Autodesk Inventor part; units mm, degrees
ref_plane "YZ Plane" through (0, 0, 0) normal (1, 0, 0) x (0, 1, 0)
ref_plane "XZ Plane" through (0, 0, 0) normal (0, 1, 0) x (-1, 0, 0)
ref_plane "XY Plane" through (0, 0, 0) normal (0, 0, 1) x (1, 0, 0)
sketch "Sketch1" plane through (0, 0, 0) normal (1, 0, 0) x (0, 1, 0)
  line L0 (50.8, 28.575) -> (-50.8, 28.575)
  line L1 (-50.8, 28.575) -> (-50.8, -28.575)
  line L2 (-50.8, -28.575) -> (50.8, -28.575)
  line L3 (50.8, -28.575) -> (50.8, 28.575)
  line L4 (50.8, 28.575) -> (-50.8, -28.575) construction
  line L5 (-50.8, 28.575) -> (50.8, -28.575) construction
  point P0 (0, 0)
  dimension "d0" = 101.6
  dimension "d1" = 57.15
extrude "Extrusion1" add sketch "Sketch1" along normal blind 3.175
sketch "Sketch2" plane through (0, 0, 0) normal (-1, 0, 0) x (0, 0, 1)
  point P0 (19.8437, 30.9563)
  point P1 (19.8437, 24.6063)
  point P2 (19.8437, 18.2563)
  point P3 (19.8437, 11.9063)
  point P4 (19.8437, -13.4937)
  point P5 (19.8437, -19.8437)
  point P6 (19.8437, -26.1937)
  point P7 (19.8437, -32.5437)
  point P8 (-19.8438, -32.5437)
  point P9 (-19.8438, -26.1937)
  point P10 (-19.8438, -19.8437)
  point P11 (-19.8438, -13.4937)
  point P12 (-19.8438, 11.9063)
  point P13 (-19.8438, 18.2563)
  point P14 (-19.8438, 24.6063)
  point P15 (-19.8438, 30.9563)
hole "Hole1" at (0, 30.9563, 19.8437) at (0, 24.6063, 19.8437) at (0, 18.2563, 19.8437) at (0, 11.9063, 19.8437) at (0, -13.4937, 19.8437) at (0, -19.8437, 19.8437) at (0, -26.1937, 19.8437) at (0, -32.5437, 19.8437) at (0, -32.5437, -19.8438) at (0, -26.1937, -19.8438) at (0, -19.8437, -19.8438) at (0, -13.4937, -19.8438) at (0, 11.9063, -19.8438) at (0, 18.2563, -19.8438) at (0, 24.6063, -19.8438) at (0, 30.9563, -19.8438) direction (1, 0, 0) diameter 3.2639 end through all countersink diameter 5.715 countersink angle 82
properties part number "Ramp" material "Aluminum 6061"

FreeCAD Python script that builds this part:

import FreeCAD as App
import Part
import Sketcher
Q = App.Units.Quantity


def add_polygon(sketch, points):
    """Adds a closed chain of lines whose ends are joined by coincident constraints."""
    first, n = sketch.GeometryCount, len(points)
    for a, b in zip(points, points[1:] + points[:1]):
        sketch.addGeometry(Part.LineSegment(App.Vector(*a, 0), App.Vector(*b, 0)), False)
    for i in range(n):
        sketch.addConstraint(Sketcher.Constraint("Coincident", first + i, 2, first + (i + 1) % n, 1))

doc = App.newDocument("Part")
body = doc.addObject("PartDesign::Body", "Body")

# Sketch on YZ plane
sketch1 = body.newObject("Sketcher::SketchObject", "Sketch")
sketch1.AttachmentSupport = (doc.getObject("YZ_Plane"), [""])
sketch1.MapMode = "FlatFace"
add_polygon(sketch1, [(51, -29), (51, 29), (-51, 29), (-51, -29)])  # lines 0-3
sketch1.addConstraint([
    Sketcher.Constraint("Vertical", 0),
    Sketcher.Constraint("Horizontal", 1),
    Sketcher.Constraint("Vertical", 2),
    Sketcher.Constraint("Horizontal", 3),
    Sketcher.Constraint("Symmetric", 0, 2, 2, 2, -1, 1),
    Sketcher.Constraint("DistanceX", 1, 2, 1, 1, Q("4 in")),
    Sketcher.Constraint("DistanceY", 0, 1, 0, 2, Q("2.25 in")),
])
pad1 = body.newObject("PartDesign::Pad", "Pad")
pad1.Profile = sketch1
pad1.Length = Q("0.125 in")

# Sketch on YZ plane
sketch2 = body.newObject("Sketcher::SketchObject", "Sketch001")
sketch2.AttachmentSupport = (doc.getObject("YZ_Plane"), [""])
sketch2.MapMode = "FlatFace"
sketch2.addGeometry([
    Part.Circle(App.Vector(31, 19.8, 0), App.Vector(0, 0, 1), 1.6),  # 0
    Part.Circle(App.Vector(24.6, 19.8, 0), App.Vector(0, 0, 1), 1.6),  # 1
    Part.Circle(App.Vector(18.3, 19.8, 0), App.Vector(0, 0, 1), 1.6),  # 2
    Part.Circle(App.Vector(11.9, 19.8, 0), App.Vector(0, 0, 1), 1.6),  # 3
    Part.Circle(App.Vector(-13.5, 19.8, 0), App.Vector(0, 0, 1), 1.6),  # 4
    Part.Circle(App.Vector(-19.8, 19.8, 0), App.Vector(0, 0, 1), 1.6),  # 5
    Part.Circle(App.Vector(-26.2, 19.8, 0), App.Vector(0, 0, 1), 1.6),  # 6
    Part.Circle(App.Vector(-32.5, 19.8, 0), App.Vector(0, 0, 1), 1.6),  # 7
    Part.Circle(App.Vector(-32.5, -19.8, 0), App.Vector(0, 0, 1), 1.6),  # 8
    Part.Circle(App.Vector(-26.2, -19.8, 0), App.Vector(0, 0, 1), 1.6),  # 9
    Part.Circle(App.Vector(-19.8, -19.8, 0), App.Vector(0, 0, 1), 1.6),  # 10
    Part.Circle(App.Vector(-13.5, -19.8, 0), App.Vector(0, 0, 1), 1.6),  # 11
    Part.Circle(App.Vector(11.9, -19.8, 0), App.Vector(0, 0, 1), 1.6),  # 12
    Part.Circle(App.Vector(18.3, -19.8, 0), App.Vector(0, 0, 1), 1.6),  # 13
    Part.Circle(App.Vector(24.6, -19.8, 0), App.Vector(0, 0, 1), 1.6),  # 14
    Part.Circle(App.Vector(31, -19.8, 0), App.Vector(0, 0, 1), 1.6),  # 15
], False)
sketch2.addConstraint([
    Sketcher.Constraint("Equal", 0, 1),
    Sketcher.Constraint("Equal", 1, 2),
    Sketcher.Constraint("Equal", 2, 3),
    Sketcher.Constraint("Equal", 3, 4),
    Sketcher.Constraint("Equal", 4, 5),
    Sketcher.Constraint("Equal", 5, 6),
    Sketcher.Constraint("Equal", 6, 7),
    Sketcher.Constraint("Equal", 7, 8),
    Sketcher.Constraint("Equal", 8, 9),
    Sketcher.Constraint("Equal", 9, 10),
    Sketcher.Constraint("Equal", 10, 11),
    Sketcher.Constraint("Equal", 11, 12),
    Sketcher.Constraint("Equal", 12, 13),
    Sketcher.Constraint("Equal", 13, 14),
    Sketcher.Constraint("Equal", 14, 15),
    Sketcher.Constraint("Symmetric", 7, 3, 8, 3, -1),
    Sketcher.Constraint("Symmetric", 6, 3, 9, 3, -1),
    Sketcher.Constraint("Symmetric", 5, 3, 10, 3, -1),
    Sketcher.Constraint("Symmetric", 4, 3, 11, 3, -1),
    Sketcher.Constraint("Symmetric", 3, 3, 12, 3, -1),
    Sketcher.Constraint("Symmetric", 2, 3, 13, 3, -1),
    Sketcher.Constraint("Symmetric", 1, 3, 14, 3, -1),
    Sketcher.Constraint("Symmetric", 0, 3, 15, 3, -1),
    Sketcher.Constraint("Horizontal", 0, 3, 1, 3),
    Sketcher.Constraint("Horizontal", 1, 3, 2, 3),
    Sketcher.Constraint("Horizontal", 2, 3, 3, 3),
    Sketcher.Constraint("Horizontal", 3, 3, 4, 3),
    Sketcher.Constraint("Horizontal", 4, 3, 5, 3),
    Sketcher.Constraint("Horizontal", 5, 3, 6, 3),
    Sketcher.Constraint("Horizontal", 6, 3, 7, 3),
    Sketcher.Constraint("DistanceX", 4, 3, 3, 3, Q("1 in")),
    Sketcher.Constraint("DistanceX", 5, 3, 0, 3, Q("2 in")),
    Sketcher.Constraint("DistanceX", 6, 3, 1, 3, Q("2 in")),
    Sketcher.Constraint("DistanceX", 7, 3, 2, 3, Q("2 in")),
    Sketcher.Constraint("Diameter", 0, Q("0.1285 in")),
    Sketcher.Constraint("DistanceX", 2, 3, 0, 3, Q("0.5 in")),
    Sketcher.Constraint("DistanceX", 3, 3, 1, 3, Q("0.5 in")),
    Sketcher.Constraint("DistanceX", 1, 3, 0, 3, Q("0.25 in")),
    Sketcher.Constraint("DistanceX", -1, 1, 0, 3, Q("1.218752 in")),
    Sketcher.Constraint("DistanceY", -1, 1, 0, 3, Q("0.781248 in")),
])
doc.recompute()
hole = body.newObject("PartDesign::Hole", "Hole")
hole.Profile = sketch2
hole.ThreadType = "None"
hole.Diameter = Q("0.1285 in")
hole.DepthType = "ThroughAll"
hole.HoleCutType = "Countersink"
hole.HoleCutDiameter = Q("0.225 in")
hole.HoleCutCountersinkAngle = 82
hole.Reversed = True

doc.recompute()
